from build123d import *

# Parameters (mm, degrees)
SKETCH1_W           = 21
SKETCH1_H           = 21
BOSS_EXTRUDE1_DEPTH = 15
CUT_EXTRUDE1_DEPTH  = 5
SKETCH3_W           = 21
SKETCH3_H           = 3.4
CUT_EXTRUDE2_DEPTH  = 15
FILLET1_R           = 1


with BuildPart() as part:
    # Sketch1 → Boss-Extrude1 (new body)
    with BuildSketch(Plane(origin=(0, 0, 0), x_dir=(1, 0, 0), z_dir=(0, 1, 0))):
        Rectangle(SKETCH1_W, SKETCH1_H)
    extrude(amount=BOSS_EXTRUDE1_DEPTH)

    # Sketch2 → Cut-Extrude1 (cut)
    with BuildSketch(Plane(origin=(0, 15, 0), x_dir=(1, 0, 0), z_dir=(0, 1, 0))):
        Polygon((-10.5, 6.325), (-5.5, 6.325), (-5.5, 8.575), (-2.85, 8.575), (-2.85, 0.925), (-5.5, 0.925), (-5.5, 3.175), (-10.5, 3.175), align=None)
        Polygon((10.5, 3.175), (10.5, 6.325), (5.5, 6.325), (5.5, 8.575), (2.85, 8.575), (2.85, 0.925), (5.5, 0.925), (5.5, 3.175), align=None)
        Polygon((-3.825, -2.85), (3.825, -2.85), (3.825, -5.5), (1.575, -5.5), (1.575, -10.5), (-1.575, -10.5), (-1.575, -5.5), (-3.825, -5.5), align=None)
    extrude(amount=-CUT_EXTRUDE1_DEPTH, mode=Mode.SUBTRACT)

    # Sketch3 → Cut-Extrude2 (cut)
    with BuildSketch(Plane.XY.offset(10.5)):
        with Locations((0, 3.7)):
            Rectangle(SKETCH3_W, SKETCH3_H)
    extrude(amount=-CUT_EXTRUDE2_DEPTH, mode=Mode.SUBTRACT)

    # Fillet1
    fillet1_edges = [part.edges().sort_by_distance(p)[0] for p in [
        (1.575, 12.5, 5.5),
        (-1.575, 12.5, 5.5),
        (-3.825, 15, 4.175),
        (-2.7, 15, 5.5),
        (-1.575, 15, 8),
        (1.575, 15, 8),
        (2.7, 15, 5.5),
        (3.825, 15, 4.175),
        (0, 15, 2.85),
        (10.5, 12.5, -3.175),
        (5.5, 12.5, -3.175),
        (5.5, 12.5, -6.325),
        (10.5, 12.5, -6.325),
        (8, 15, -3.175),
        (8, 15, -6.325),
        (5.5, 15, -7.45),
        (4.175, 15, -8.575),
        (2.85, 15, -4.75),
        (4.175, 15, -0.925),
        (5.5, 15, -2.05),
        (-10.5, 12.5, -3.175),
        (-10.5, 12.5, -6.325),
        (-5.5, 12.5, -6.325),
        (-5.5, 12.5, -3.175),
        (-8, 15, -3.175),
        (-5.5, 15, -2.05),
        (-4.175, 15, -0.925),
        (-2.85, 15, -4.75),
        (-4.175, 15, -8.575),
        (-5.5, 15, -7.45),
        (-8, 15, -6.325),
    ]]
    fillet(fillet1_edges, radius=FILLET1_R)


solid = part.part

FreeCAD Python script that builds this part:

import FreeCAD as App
import Part
import Sketcher
from FreeCAD import Vector


def edges_at(feature, points):
    """Names of the edges that pass closest to the given points."""
    edges = feature.Shape.Edges
    near = lambda p: min(range(len(edges)), key=lambda i: edges[i].distToShape(Part.Vertex(*p))[0])
    return sorted({f"Edge{near(p) + 1}" for p in points})


def add_polygon(sketch, points):
    """Adds a closed chain of lines whose ends are joined by coincident constraints."""
    first, n = sketch.GeometryCount, len(points)
    for a, b in zip(points, points[1:] + points[:1]):
        sketch.addGeometry(Part.LineSegment(App.Vector(*a, 0), App.Vector(*b, 0)), False)
    for i in range(n):
        sketch.addConstraint(Sketcher.Constraint("Coincident", first + i, 2, first + (i + 1) % n, 1))

doc = App.newDocument("Part")
body = doc.addObject("PartDesign::Body", "Body")

# Sketch on XZ plane
sketch1 = body.newObject("Sketcher::SketchObject", "Sketch")
sketch1.AttachmentSupport = (doc.getObject("XZ_Plane"), [""])
sketch1.MapMode = "FlatFace"
add_polygon(sketch1, [(-10, -10), (-10, 10), (10, 10), (10, -10)])  # lines 0-3
sketch1.addConstraint([
    Sketcher.Constraint("Vertical", 0),
    Sketcher.Constraint("Horizontal", 1),
    Sketcher.Constraint("Vertical", 2),
    Sketcher.Constraint("Horizontal", 3),
    Sketcher.Constraint("Symmetric", 0, 2, 2, 2, -1, 1),
    Sketcher.Constraint("Equal", 3, 0),
    Sketcher.Constraint("DistanceX", 1, 1, 1, 2, 21.0),
])
pad1 = body.newObject("PartDesign::Pad", "Pad")
pad1.Profile = sketch1
pad1.Length = 15
pad1.Reversed = True

# Sketch on XZ plane
sketch2 = body.newObject("Sketcher::SketchObject", "Sketch001")
sketch2.AttachmentSupport = (doc.getObject("XZ_Plane"), [""])
sketch2.MapMode = "FlatFace"
sketch2.AttachmentOffset = App.Placement(Vector(0, 0, -15), App.Rotation())
add_polygon(sketch2, [(-5.5, -6.3), (-10.5, -6.3), (-10.5, -3.2), (-5.5, -3.2), (-5.5, -0.9), (-2.9, -0.9), (-2.9, -8.6), (-5.5, -8.6)])  # lines 0-7
add_polygon(sketch2, [(10.5, -3.2), (10.5, -6.3), (5.5, -6.3), (5.5, -8.6), (2.9, -8.6), (2.9, -0.9), (5.5, -0.9), (5.5, -3.2)])  # lines 8-15
add_polygon(sketch2, [(3.8, 2.9), (-3.8, 2.9), (-3.8, 5.5), (-1.6, 5.5), (-1.6, 10.5), (1.6, 10.5), (1.6, 5.5), (3.8, 5.5)])  # lines 16-23
sketch2.addConstraint([
    Sketcher.Constraint("Horizontal", 0),
    Sketcher.Constraint("Vertical", 1),
    Sketcher.Constraint("Horizontal", 2),
    Sketcher.Constraint("Vertical", 3),
    Sketcher.Constraint("Horizontal", 4),
    Sketcher.Constraint("Vertical", 5),
    Sketcher.Constraint("Horizontal", 6),
    Sketcher.Constraint("Vertical", 7),
    Sketcher.Constraint("Vertical", 8),
    Sketcher.Constraint("Horizontal", 9),
    Sketcher.Constraint("Vertical", 10),
    Sketcher.Constraint("Horizontal", 11),
    Sketcher.Constraint("Vertical", 12),
    Sketcher.Constraint("Horizontal", 13),
    Sketcher.Constraint("Vertical", 14),
    Sketcher.Constraint("Horizontal", 15),
    Sketcher.Constraint("Horizontal", 16),
    Sketcher.Constraint("Vertical", 17),
    Sketcher.Constraint("Horizontal", 18),
    Sketcher.Constraint("Vertical", 19),
    Sketcher.Constraint("Horizontal", 20),
    Sketcher.Constraint("Vertical", 21),
    Sketcher.Constraint("Horizontal", 22),
    Sketcher.Constraint("Vertical", 23),
    Sketcher.Constraint("Symmetric", 0, 2, 8, 2, -2),
    Sketcher.Constraint("Symmetric", 6, 2, 10, 2, -2),
    Sketcher.Constraint("Symmetric", 4, 2, 12, 2, -2),
    Sketcher.Constraint("Symmetric", 2, 2, 14, 2, -2),
    Sketcher.Constraint("Symmetric", 18, 2, 21, 2, -2),
    Sketcher.Constraint("Vertical", 3, 2, 6, 2),
    Sketcher.Constraint("Equal", 18, 22),
    Sketcher.Constraint("Equal", 20, 1),
    Sketcher.Constraint("Equal", 22, 3),
    Sketcher.Constraint("Equal", 16, 5),
    Sketcher.Constraint("Equal", 13, 17),
    Sketcher.Constraint("Equal", 15, 19),
    Sketcher.Constraint("DistanceX", 0, 2, 0, 1, 5.0),
    Sketcher.Constraint("DistanceX", 7, 2, 8, 2, 16.0),
    Sketcher.Constraint("DistanceX", 4, 1, 4, 2, 2.65),
    Sketcher.Constraint("DistanceX", 16, 2, 16, 1, 7.65),
    Sketcher.Constraint("DistanceX", 18, 1, 18, 2, 2.25),
    Sketcher.Constraint("DistanceY", -1, 1, 17, 2, 5.5),
    Sketcher.Constraint("DistanceY", 0, 2, -1, 1, 6.325),
])
pocket1 = body.newObject("PartDesign::Pocket", "Pocket")
pocket1.Profile = sketch2
pocket1.Length = 5
pocket1.Reversed = True

# Sketch on XY plane
sketch3 = body.newObject("Sketcher::SketchObject", "Sketch002")
sketch3.AttachmentSupport = (doc.getObject("XY_Plane"), [""])
sketch3.MapMode = "FlatFace"
sketch3.AttachmentOffset = App.Placement(Vector(0, 0, 10.5), App.Rotation())
add_polygon(sketch3, [(-10.5, 5.4), (-10.5, 2), (10.5, 2), (10.5, 5.4)])  # lines 0-3
sketch3.addConstraint([
    Sketcher.Constraint("Vertical", 0),
    Sketcher.Constraint("Horizontal", 1),
    Sketcher.Constraint("Vertical", 2),
    Sketcher.Constraint("Horizontal", 3),
    Sketcher.Constraint("DistanceX", 1, 1, 1, 2, 21.0),
    Sketcher.Constraint("DistanceY", 0, 2, 0, 1, 3.4),
    Sketcher.Constraint("DistanceY", -1, 1, 0, 2, 2.0),
    Sketcher.Constraint("DistanceX", 0, 2, -1, 1, 10.5),
])
pocket2 = body.newObject("PartDesign::Pocket", "Pocket001")
pocket2.Profile = sketch3
pocket2.Length = 15
doc.recompute()

fillet = body.newObject("PartDesign::Fillet", "Fillet")
fillet.Base = (pocket2, edges_at(pocket2, [
    (1.575, 12.5, 5.5),
    (-1.575, 12.5, 5.5),
    (-3.825, 15, 4.175),
    (-2.7, 15, 5.5),
    (-1.575, 15, 8),
    (1.575, 15, 8),
    (2.7, 15, 5.5),
    (3.825, 15, 4.175),
    (0, 15, 2.85),
    (10.5, 12.5, -3.175),
    (5.5, 12.5, -3.175),
    (5.5, 12.5, -6.325),
    (10.5, 12.5, -6.325),
    (8, 15, -3.175),
    (8, 15, -6.325),
    (5.5, 15, -7.45),
    (4.175, 15, -8.575),
    (2.85, 15, -4.75),
    (4.175, 15, -0.925),
    (5.5, 15, -2.05),
    (-10.5, 12.5, -3.175),
    (-10.5, 12.5, -6.325),
    (-5.5, 12.5, -6.325),
    (-5.5, 12.5, -3.175),
    (-8, 15, -3.175),
    (-5.5, 15, -2.05),
    (-4.175, 15, -0.925),
    (-2.85, 15, -4.75),
    (-4.175, 15, -8.575),
    (-5.5, 15, -7.45),
    (-8, 15, -6.325),
]))
fillet.Radius = 1

doc.recompute()
